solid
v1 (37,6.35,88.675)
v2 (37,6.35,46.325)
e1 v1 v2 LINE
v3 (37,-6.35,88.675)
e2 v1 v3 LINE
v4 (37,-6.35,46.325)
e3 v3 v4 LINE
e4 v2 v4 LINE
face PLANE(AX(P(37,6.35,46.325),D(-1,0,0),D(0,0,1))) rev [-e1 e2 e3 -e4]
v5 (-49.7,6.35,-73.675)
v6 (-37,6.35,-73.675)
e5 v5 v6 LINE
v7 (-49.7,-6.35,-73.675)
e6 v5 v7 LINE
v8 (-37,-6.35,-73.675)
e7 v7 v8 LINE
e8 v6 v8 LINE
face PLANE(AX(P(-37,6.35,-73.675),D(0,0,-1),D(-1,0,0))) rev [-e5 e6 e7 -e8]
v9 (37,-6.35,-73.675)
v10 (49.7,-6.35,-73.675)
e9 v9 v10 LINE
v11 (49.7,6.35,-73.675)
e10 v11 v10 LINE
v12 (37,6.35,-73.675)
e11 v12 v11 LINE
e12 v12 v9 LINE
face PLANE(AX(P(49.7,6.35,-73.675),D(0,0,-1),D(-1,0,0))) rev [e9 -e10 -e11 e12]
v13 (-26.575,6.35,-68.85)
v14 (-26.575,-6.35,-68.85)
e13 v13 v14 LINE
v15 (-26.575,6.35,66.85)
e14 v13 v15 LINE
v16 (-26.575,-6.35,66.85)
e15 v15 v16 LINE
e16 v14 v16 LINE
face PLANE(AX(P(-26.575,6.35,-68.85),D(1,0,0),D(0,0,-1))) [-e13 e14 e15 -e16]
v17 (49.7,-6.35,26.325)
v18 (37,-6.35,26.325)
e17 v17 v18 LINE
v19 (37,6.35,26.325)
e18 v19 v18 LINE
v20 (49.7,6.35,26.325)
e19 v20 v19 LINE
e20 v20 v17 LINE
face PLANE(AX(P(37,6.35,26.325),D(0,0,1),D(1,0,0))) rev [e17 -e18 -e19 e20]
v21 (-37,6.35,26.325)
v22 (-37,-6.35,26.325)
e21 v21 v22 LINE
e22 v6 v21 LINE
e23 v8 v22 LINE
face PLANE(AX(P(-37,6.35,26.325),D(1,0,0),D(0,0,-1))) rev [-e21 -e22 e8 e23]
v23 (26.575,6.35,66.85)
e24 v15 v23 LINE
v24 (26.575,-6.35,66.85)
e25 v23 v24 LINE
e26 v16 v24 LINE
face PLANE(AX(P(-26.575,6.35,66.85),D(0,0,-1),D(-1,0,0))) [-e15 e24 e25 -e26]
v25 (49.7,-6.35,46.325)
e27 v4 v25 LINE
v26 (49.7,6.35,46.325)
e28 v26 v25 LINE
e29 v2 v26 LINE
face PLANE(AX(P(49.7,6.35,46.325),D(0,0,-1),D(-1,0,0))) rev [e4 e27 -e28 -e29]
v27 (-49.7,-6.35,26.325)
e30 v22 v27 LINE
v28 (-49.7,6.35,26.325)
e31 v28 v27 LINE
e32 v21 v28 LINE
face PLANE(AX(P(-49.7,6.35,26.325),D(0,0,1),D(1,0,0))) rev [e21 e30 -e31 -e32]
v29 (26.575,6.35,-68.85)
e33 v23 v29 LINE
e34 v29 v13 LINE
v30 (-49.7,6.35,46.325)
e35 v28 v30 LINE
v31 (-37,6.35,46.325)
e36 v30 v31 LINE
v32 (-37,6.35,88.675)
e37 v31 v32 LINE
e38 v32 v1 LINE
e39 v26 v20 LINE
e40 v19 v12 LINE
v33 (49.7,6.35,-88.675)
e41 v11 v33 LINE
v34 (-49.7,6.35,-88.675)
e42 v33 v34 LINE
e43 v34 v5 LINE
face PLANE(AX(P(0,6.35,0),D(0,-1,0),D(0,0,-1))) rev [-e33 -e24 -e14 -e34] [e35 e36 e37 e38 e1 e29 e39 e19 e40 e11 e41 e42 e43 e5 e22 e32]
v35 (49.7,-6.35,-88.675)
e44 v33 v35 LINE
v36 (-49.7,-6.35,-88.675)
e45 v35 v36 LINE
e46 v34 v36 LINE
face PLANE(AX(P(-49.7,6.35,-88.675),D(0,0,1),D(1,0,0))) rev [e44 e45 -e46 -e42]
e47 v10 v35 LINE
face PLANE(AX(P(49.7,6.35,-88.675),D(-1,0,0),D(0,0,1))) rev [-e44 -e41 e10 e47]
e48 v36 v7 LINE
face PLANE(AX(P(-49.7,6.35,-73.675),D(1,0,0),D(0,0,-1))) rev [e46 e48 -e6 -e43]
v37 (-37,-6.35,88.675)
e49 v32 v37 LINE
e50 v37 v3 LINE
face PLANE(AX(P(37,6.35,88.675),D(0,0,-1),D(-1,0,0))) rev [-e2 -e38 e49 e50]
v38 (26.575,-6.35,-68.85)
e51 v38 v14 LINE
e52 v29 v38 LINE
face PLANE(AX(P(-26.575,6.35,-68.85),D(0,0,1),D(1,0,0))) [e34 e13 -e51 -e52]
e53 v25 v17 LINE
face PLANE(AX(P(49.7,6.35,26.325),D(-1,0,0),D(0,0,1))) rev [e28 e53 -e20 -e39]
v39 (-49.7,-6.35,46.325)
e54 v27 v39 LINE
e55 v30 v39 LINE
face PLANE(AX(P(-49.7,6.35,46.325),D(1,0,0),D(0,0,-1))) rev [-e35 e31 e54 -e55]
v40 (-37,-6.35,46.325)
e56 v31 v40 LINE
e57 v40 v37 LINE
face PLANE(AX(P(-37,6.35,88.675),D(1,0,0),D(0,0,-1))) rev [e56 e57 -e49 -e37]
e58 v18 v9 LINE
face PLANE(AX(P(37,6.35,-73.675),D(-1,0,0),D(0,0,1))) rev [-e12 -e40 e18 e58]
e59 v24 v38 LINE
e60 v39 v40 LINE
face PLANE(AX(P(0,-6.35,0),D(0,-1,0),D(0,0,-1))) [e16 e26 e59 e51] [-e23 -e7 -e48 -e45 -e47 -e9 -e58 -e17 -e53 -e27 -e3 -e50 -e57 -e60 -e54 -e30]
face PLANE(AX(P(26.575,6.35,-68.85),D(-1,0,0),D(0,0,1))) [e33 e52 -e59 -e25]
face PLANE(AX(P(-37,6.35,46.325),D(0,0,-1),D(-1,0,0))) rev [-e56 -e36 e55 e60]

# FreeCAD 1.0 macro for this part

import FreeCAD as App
import Part
import Sketcher

V = App.Vector
Q = App.Units.Quantity


def add_polygon(sketch, points):
    """Adds a closed chain of lines whose ends are joined by coincident constraints."""
    first, n = sketch.GeometryCount, len(points)
    for a, b in zip(points, points[1:] + points[:1]):
        sketch.addGeometry(Part.LineSegment(App.Vector(*a, 0), App.Vector(*b, 0)), False)
    for i in range(n):
        sketch.addConstraint(Sketcher.Constraint("Coincident", first + i, 2, first + (i + 1) % n, 1))

doc = App.newDocument("Part")
body = doc.addObject("PartDesign::Body", "Body")

sketch1 = body.newObject("Sketcher::SketchObject", "Sketch")
sketch1.AttachmentSupport = (doc.getObject("XZ_Plane"), [""])
sketch1.MapMode = "FlatFace"
add_polygon(sketch1, [(-37, 46), (-37, 89), (37, 89), (37, 46), (50, 46), (50, 26), (37, 26), (37, -74), (50, -74), (50, -89), (-50, -89), (-50, -74), (-37, -74), (-37, 26), (-50, 26), (-50, 46)])
add_polygon(sketch1, [(-27, 67), (-27, -69), (27, -69), (27, 67)])
sketch1.addConstraint([
    Sketcher.Constraint("Vertical", 0),
    Sketcher.Constraint("Horizontal", 1),
    Sketcher.Constraint("Vertical", 2),
    Sketcher.Constraint("Horizontal", 3),
    Sketcher.Constraint("Vertical", 4),
    Sketcher.Constraint("Horizontal", 5),
    Sketcher.Constraint("Vertical", 6),
    Sketcher.Constraint("Horizontal", 7),
    Sketcher.Constraint("Vertical", 8),
    Sketcher.Constraint("Horizontal", 9),
    Sketcher.Constraint("Vertical", 10),
    Sketcher.Constraint("Horizontal", 11),
    Sketcher.Constraint("Vertical", 12),
    Sketcher.Constraint("Horizontal", 13),
    Sketcher.Constraint("Vertical", 14),
    Sketcher.Constraint("Horizontal", 15),
    Sketcher.Constraint("Vertical", 16),
    Sketcher.Constraint("Horizontal", 17),
    Sketcher.Constraint("Vertical", 18),
    Sketcher.Constraint("Horizontal", 19),
    Sketcher.Constraint("Symmetric", 7, 2, 10, 2, -2),
    Sketcher.Constraint("Symmetric", 5, 2, 12, 2, -2),
    Sketcher.Constraint("Symmetric", 3, 2, 14, 2, -2),
    Sketcher.Constraint("Vertical", 2, 2, 5, 2),
    Sketcher.Constraint("Vertical", 4, 2, 7, 2),
    Sketcher.Constraint("Vertical", 0, 2, 11, 2),
    Sketcher.Constraint("DistanceX", 1, 1, 1, 2, Q("74 mm")),
    Sketcher.Constraint("DistanceY", 4, 2, 4, 1, Q("20 mm")),
    Sketcher.Constraint("DistanceY", 6, 2, 6, 1, Q("100 mm")),
    Sketcher.Constraint("DistanceY", 8, 2, 8, 1, Q("15 mm")),
    Sketcher.Constraint("DistanceX", 3, 1, 3, 2, Q("12.7 mm")),
    Sketcher.Constraint("DistanceY", 16, 2, 16, 1, Q("135.7 mm")),
    Sketcher.Constraint("DistanceX", 17, 1, 17, 2, Q("53.15 mm")),
    Sketcher.Constraint("DistanceY", 0, 1, 0, 2, Q("42.35 mm")),
    Sketcher.Constraint("DistanceY", 16, 2, -1, 1, Q("68.85 mm")),
    Sketcher.Constraint("DistanceY", -1, 1, 0, 2, Q("88.675 mm")),
    Sketcher.Constraint("DistanceX", 16, 2, -1, 1, Q("26.575 mm")),
])
pad1 = body.newObject("PartDesign::Pad", "Pad")
pad1.Profile = sketch1
pad1.Length = 12.7
pad1.Midplane = True

doc.recompute()
